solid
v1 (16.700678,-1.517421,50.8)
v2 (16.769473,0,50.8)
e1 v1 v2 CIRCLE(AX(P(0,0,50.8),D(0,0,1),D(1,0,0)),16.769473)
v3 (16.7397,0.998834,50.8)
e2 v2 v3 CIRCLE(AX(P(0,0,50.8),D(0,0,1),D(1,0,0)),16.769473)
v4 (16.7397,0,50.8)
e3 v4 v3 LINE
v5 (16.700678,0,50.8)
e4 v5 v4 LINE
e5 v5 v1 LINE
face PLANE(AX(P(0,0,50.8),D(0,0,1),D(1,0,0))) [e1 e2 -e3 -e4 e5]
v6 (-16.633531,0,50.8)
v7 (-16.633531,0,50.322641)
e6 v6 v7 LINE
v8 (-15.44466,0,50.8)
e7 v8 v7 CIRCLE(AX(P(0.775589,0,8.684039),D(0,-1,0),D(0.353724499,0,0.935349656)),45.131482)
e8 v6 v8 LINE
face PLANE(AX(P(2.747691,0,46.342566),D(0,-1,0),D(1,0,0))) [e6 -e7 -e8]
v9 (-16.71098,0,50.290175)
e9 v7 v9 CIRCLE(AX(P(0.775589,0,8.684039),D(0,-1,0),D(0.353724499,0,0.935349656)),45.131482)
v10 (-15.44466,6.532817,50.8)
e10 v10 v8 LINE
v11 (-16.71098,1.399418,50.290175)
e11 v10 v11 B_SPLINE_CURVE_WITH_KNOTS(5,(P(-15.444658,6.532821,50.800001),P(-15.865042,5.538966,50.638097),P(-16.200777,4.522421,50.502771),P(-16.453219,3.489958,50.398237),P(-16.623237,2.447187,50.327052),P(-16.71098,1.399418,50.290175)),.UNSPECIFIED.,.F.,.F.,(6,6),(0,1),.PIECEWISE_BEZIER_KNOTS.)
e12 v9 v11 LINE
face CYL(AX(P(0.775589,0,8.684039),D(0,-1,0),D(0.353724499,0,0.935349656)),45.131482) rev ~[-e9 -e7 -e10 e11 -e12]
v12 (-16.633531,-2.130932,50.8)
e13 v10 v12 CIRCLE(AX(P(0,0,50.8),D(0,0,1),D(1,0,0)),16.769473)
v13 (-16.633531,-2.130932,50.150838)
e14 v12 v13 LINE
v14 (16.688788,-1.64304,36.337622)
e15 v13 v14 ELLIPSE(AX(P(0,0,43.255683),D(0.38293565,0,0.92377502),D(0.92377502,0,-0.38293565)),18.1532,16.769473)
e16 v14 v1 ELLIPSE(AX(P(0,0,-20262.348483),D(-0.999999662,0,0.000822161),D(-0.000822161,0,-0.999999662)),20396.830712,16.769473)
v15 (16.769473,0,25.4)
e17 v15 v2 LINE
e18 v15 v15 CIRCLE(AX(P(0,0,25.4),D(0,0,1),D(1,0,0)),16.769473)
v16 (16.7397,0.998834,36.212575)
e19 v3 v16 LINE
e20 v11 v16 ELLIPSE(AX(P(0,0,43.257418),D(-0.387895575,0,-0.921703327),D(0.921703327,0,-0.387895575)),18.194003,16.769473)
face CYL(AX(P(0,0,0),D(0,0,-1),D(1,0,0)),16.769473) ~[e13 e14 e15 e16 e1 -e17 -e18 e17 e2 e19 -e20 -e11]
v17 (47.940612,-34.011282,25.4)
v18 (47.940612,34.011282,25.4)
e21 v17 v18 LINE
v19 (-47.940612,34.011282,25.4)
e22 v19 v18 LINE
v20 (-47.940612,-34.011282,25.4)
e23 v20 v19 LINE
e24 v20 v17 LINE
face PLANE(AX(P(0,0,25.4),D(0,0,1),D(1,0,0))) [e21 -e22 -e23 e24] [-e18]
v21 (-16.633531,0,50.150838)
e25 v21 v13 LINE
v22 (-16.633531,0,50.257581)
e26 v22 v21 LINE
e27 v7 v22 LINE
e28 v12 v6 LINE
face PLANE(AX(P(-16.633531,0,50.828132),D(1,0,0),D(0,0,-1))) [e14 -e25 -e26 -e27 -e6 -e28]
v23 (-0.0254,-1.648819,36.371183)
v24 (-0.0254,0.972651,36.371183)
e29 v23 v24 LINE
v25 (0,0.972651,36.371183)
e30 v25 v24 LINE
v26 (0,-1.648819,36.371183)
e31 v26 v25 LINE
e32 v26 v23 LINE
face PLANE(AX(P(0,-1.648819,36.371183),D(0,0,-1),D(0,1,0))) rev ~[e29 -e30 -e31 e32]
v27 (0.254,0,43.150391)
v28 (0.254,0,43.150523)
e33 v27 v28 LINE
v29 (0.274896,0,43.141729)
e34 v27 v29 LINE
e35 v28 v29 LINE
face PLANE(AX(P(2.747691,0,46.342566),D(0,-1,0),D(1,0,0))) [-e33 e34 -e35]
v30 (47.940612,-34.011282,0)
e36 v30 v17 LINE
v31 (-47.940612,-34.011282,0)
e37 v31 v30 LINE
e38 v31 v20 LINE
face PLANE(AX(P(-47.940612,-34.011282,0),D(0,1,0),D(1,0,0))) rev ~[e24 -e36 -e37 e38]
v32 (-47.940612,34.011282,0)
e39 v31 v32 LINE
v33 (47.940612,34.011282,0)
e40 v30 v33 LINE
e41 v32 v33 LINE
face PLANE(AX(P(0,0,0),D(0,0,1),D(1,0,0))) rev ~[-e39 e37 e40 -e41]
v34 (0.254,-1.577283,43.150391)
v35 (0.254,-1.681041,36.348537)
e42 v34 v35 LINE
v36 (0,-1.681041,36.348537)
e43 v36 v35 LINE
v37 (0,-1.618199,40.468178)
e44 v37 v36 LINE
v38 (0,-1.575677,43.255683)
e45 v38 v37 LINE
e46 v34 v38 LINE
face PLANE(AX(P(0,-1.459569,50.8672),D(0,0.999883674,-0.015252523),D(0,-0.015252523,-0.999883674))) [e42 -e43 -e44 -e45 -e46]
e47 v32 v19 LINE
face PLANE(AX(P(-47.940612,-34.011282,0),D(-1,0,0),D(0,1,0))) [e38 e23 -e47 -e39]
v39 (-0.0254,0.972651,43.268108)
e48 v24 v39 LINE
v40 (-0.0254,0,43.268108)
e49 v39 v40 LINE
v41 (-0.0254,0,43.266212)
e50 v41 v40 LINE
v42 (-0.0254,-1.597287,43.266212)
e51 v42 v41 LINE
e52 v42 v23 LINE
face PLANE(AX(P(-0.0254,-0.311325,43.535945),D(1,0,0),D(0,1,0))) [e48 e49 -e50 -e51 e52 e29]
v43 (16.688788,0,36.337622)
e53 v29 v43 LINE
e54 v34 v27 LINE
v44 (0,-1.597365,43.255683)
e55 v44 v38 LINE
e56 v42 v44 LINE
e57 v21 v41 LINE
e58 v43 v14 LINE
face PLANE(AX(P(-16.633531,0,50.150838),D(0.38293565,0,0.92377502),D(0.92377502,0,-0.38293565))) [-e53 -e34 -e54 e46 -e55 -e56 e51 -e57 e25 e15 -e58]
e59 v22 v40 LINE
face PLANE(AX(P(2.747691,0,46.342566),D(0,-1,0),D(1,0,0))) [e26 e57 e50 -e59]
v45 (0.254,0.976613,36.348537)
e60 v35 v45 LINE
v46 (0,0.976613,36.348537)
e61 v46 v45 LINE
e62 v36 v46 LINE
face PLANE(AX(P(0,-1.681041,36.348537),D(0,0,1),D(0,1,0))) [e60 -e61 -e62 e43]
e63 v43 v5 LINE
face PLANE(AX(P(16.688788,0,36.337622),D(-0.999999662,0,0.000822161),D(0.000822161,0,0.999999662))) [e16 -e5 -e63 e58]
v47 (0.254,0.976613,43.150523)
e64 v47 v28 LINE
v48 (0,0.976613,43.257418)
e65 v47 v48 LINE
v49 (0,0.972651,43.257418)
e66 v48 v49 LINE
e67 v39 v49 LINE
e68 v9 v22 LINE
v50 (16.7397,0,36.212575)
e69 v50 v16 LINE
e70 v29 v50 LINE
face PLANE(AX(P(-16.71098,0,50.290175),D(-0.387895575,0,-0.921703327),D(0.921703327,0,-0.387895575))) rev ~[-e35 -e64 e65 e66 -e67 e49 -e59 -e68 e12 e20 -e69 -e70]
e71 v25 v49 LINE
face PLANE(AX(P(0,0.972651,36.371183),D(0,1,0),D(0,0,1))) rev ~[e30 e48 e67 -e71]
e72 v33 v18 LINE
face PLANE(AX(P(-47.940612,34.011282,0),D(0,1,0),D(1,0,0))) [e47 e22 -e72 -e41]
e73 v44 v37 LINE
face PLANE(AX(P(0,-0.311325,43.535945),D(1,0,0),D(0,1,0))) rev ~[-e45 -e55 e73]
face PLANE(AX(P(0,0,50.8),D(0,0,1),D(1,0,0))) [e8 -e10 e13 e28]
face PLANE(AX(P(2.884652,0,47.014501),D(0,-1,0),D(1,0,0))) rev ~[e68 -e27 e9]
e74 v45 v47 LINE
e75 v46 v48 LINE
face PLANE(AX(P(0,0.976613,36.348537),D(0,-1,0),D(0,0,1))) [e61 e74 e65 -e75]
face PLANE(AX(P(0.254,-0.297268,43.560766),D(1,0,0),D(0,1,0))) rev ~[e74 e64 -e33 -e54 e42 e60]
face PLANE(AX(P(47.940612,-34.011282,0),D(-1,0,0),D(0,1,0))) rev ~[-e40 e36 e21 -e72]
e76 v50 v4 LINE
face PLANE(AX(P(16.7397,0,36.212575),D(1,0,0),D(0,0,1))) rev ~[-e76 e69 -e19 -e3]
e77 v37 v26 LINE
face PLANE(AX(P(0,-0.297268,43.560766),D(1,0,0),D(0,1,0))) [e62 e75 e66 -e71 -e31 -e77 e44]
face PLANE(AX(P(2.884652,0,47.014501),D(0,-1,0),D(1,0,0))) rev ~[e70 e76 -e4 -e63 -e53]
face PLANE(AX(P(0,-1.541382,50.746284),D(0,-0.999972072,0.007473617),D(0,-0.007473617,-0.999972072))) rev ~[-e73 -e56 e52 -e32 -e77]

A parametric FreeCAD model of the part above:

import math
import FreeCAD as App
import Part
import Sketcher
from FreeCAD import Vector


def add_polygon(sketch, points):
    """Adds a closed chain of lines whose ends are joined by coincident constraints."""
    first, n = sketch.GeometryCount, len(points)
    for a, b in zip(points, points[1:] + points[:1]):
        sketch.addGeometry(Part.LineSegment(App.Vector(*a, 0), App.Vector(*b, 0)), False)
    for i in range(n):
        sketch.addConstraint(Sketcher.Constraint("Coincident", first + i, 2, first + (i + 1) % n, 1))

doc = App.newDocument("Part")
params = doc.addObject("Spreadsheet::Sheet", "Params")
for row, (alias, value) in enumerate([
    ("pad1_length", "1 in"),
    ("pad2_length", "2 in"),
    ("pocket1_length", "1 in"),
    ("pocket2_length", "1 in"),
    ("pocket3_length", "0.01 in"),
    ("pocket4_length", "0.001 in"),
], start=1):
    params.set(f"A{row}", alias)
    params.set(f"B{row}", "=" + value)
    params.setAlias(f"B{row}", alias)

body = doc.addObject("PartDesign::Body", "Body")

sketch1 = body.newObject("Sketcher::SketchObject", "Sketch")
sketch1.AttachmentSupport = (doc.getObject("XY_Plane"), [""])
sketch1.MapMode = "FlatFace"
add_polygon(sketch1, [(-47.940612, 34.011282), (-47.940612, -34.011282), (47.940612, -34.011282), (47.940612, 34.011282)])
sketch1.addGeometry(Part.Circle(Vector(0, 0, 0), Vector(0, 0, 1), 16.769473), False)
sketch1.addConstraint([
    Sketcher.Constraint("Vertical", 0),
    Sketcher.Constraint("Horizontal", 1),
    Sketcher.Constraint("Vertical", 2),
    Sketcher.Constraint("Horizontal", 3),
    Sketcher.Constraint("Coincident", 4, 3, -1, 1),
    Sketcher.Constraint("Symmetric", 0, 2, 2, 2, -1, 1),
    Sketcher.Constraint("Diameter", 4, 33.538946),
    Sketcher.Constraint("DistanceX", 1, 1, 1, 2, 95.881224),
    Sketcher.Constraint("DistanceY", 0, 2, 0, 1, 68.022564),
])
pad1 = body.newObject("PartDesign::Pad", "Pad")
pad1.Profile = sketch1
pad1.setExpression("Length", "Params.pad1_length")

sketch2 = body.newObject("Sketcher::SketchObject", "Sketch001")
sketch2.AttachmentSupport = (doc.getObject("XY_Plane"), [""])
sketch2.MapMode = "FlatFace"
sketch2.addGeometry(Part.Circle(Vector(0, 0, 0), Vector(0, 0, 1), 16.769473), False)
sketch2.addConstraint([
    Sketcher.Constraint("Coincident", 0, 3, -1, 1),
    Sketcher.Constraint("Diameter", 0, 33.538946),
])
pad2 = body.newObject("PartDesign::Pad", "Pad001")
pad2.Profile = sketch2
pad2.setExpression("Length", "Params.pad2_length")

sketch3 = body.newObject("Sketcher::SketchObject", "Sketch002")
sketch3.AttachmentSupport = (doc.getObject("XZ_Plane"), [""])
sketch3.MapMode = "FlatFace"
sketch3.addGeometry([
    Part.ArcOfCircle(Part.Circle(Vector(0.775589, 8.684039, 0), Vector(0, 0, 1), 45.131482), math.radians(69.284708), math.radians(112.796442)),
    Part.LineSegment(Vector(-16.71098, 50.290175, 0), Vector(16.7397, 36.212575, 0)),
    Part.LineSegment(Vector(16.7397, 36.212575, 0), Vector(16.7397, 50.897755, 0)),
], False)
sketch3.addConstraint([
    Sketcher.Constraint("Coincident", 0, 2, 1, 1),
    Sketcher.Constraint("Coincident", 1, 2, 2, 1),
    Sketcher.Constraint("Coincident", 2, 2, 0, 1),
    Sketcher.Constraint("Vertical", 2),
    Sketcher.Constraint("Radius", 0, 45.131482),
    Sketcher.Constraint("DistanceY", 2, 1, 2, 2, 14.68518),
    Sketcher.Constraint("DistanceX", -1, 1, 1, 2, 16.7397),
    Sketcher.Constraint("DistanceY", 1, 2, 0, 2, 14.0776),
    Sketcher.Constraint("Distance", 1, 36.292242),
    Sketcher.Constraint("DistanceY", -1, 1, 0, 3, 8.684039),
])
pocket1 = body.newObject("PartDesign::Pocket", "Pocket")
pocket1.Profile = sketch3
pocket1.setExpression("Length", "Params.pocket1_length")

sketch4 = body.newObject("Sketcher::SketchObject", "Sketch003")
sketch4.AttachmentSupport = (doc.getObject("XZ_Plane"), [""])
sketch4.MapMode = "FlatFace"
add_polygon(sketch4, [(-16.633531, 50.150838), (16.688788, 36.337622), (16.700679, 50.800726), (-16.633531, 50.828132)])
sketch4.addConstraint([
    Sketcher.Constraint("Vertical", 3),
    Sketcher.Constraint("Perpendicular", 1, 2),
    Sketcher.Constraint("Distance", 0, 36.071899),
    Sketcher.Constraint("Distance", 1, 14.463109),
    Sketcher.Constraint("Distance", 2, 33.334221),
    Sketcher.Constraint("DistanceY", 3, 2, 3, 1, 0.677294),
    Sketcher.Constraint("DistanceX", -1, 1, 1, 2, 16.700679),
    Sketcher.Constraint("DistanceY", -1, 1, 2, 2, 50.828132),
])
pocket2 = body.newObject("PartDesign::Pocket", "Pocket001")
pocket2.Profile = sketch4
pocket2.setExpression("Length", "Params.pocket2_length")
pocket2.Reversed = True

sketch5 = body.newObject("Sketcher::SketchObject", "Sketch004")
sketch5.AttachmentSupport = (doc.getObject("YZ_Plane"), [""])
sketch5.MapMode = "FlatFace"
add_polygon(sketch5, [(-1.459569, 50.8672), (-1.681041, 36.348537), (0.976613, 36.348537), (0.976613, 50.8672)])
sketch5.addConstraint([
    Sketcher.Constraint("Horizontal", 1),
    Sketcher.Constraint("Vertical", 2),
    Sketcher.Constraint("Horizontal", 3),
    Sketcher.Constraint("DistanceX", 3, 2, 3, 1, 2.436182),
    Sketcher.Constraint("DistanceY", -1, 1, 2, 2, 50.8672),
    Sketcher.Constraint("DistanceX", 1, 1, 1, 2, 2.657654),
    Sketcher.Constraint("DistanceY", 2, 1, 2, 2, 14.518663),
    Sketcher.Constraint("DistanceX", 0, 2, -1, 1, 1.681041),
])
pocket3 = body.newObject("PartDesign::Pocket", "Pocket002")
pocket3.Profile = sketch5
pocket3.setExpression("Length", "Params.pocket3_length")
pocket3.Reversed = True

sketch6 = body.newObject("Sketcher::SketchObject", "Sketch005")
sketch6.AttachmentSupport = (doc.getObject("YZ_Plane"), [""])
sketch6.MapMode = "FlatFace"
add_polygon(sketch6, [(-1.541382, 50.746284), (-1.648819, 36.371183), (0.972651, 36.371183), (0.972651, 50.746284)])
sketch6.addConstraint([
    Sketcher.Constraint("Horizontal", 1),
    Sketcher.Constraint("Vertical", 2),
    Sketcher.Constraint("Horizontal", 3),
    Sketcher.Constraint("DistanceY", 2, 1, 2, 2, 14.375101),
    Sketcher.Constraint("DistanceX", 1, 1, 1, 2, 2.62147),
    Sketcher.Constraint("DistanceX", 3, 2, 3, 1, 2.514033),
    Sketcher.Constraint("DistanceX", 0, 2, -1, 1, 1.648819),
    Sketcher.Constraint("DistanceY", -1, 1, 0, 2, 36.371183),
])
pocket4 = body.newObject("PartDesign::Pocket", "Pocket003")
pocket4.Profile = sketch6
pocket4.setExpression("Length", "Params.pocket4_length")

doc.recompute()
